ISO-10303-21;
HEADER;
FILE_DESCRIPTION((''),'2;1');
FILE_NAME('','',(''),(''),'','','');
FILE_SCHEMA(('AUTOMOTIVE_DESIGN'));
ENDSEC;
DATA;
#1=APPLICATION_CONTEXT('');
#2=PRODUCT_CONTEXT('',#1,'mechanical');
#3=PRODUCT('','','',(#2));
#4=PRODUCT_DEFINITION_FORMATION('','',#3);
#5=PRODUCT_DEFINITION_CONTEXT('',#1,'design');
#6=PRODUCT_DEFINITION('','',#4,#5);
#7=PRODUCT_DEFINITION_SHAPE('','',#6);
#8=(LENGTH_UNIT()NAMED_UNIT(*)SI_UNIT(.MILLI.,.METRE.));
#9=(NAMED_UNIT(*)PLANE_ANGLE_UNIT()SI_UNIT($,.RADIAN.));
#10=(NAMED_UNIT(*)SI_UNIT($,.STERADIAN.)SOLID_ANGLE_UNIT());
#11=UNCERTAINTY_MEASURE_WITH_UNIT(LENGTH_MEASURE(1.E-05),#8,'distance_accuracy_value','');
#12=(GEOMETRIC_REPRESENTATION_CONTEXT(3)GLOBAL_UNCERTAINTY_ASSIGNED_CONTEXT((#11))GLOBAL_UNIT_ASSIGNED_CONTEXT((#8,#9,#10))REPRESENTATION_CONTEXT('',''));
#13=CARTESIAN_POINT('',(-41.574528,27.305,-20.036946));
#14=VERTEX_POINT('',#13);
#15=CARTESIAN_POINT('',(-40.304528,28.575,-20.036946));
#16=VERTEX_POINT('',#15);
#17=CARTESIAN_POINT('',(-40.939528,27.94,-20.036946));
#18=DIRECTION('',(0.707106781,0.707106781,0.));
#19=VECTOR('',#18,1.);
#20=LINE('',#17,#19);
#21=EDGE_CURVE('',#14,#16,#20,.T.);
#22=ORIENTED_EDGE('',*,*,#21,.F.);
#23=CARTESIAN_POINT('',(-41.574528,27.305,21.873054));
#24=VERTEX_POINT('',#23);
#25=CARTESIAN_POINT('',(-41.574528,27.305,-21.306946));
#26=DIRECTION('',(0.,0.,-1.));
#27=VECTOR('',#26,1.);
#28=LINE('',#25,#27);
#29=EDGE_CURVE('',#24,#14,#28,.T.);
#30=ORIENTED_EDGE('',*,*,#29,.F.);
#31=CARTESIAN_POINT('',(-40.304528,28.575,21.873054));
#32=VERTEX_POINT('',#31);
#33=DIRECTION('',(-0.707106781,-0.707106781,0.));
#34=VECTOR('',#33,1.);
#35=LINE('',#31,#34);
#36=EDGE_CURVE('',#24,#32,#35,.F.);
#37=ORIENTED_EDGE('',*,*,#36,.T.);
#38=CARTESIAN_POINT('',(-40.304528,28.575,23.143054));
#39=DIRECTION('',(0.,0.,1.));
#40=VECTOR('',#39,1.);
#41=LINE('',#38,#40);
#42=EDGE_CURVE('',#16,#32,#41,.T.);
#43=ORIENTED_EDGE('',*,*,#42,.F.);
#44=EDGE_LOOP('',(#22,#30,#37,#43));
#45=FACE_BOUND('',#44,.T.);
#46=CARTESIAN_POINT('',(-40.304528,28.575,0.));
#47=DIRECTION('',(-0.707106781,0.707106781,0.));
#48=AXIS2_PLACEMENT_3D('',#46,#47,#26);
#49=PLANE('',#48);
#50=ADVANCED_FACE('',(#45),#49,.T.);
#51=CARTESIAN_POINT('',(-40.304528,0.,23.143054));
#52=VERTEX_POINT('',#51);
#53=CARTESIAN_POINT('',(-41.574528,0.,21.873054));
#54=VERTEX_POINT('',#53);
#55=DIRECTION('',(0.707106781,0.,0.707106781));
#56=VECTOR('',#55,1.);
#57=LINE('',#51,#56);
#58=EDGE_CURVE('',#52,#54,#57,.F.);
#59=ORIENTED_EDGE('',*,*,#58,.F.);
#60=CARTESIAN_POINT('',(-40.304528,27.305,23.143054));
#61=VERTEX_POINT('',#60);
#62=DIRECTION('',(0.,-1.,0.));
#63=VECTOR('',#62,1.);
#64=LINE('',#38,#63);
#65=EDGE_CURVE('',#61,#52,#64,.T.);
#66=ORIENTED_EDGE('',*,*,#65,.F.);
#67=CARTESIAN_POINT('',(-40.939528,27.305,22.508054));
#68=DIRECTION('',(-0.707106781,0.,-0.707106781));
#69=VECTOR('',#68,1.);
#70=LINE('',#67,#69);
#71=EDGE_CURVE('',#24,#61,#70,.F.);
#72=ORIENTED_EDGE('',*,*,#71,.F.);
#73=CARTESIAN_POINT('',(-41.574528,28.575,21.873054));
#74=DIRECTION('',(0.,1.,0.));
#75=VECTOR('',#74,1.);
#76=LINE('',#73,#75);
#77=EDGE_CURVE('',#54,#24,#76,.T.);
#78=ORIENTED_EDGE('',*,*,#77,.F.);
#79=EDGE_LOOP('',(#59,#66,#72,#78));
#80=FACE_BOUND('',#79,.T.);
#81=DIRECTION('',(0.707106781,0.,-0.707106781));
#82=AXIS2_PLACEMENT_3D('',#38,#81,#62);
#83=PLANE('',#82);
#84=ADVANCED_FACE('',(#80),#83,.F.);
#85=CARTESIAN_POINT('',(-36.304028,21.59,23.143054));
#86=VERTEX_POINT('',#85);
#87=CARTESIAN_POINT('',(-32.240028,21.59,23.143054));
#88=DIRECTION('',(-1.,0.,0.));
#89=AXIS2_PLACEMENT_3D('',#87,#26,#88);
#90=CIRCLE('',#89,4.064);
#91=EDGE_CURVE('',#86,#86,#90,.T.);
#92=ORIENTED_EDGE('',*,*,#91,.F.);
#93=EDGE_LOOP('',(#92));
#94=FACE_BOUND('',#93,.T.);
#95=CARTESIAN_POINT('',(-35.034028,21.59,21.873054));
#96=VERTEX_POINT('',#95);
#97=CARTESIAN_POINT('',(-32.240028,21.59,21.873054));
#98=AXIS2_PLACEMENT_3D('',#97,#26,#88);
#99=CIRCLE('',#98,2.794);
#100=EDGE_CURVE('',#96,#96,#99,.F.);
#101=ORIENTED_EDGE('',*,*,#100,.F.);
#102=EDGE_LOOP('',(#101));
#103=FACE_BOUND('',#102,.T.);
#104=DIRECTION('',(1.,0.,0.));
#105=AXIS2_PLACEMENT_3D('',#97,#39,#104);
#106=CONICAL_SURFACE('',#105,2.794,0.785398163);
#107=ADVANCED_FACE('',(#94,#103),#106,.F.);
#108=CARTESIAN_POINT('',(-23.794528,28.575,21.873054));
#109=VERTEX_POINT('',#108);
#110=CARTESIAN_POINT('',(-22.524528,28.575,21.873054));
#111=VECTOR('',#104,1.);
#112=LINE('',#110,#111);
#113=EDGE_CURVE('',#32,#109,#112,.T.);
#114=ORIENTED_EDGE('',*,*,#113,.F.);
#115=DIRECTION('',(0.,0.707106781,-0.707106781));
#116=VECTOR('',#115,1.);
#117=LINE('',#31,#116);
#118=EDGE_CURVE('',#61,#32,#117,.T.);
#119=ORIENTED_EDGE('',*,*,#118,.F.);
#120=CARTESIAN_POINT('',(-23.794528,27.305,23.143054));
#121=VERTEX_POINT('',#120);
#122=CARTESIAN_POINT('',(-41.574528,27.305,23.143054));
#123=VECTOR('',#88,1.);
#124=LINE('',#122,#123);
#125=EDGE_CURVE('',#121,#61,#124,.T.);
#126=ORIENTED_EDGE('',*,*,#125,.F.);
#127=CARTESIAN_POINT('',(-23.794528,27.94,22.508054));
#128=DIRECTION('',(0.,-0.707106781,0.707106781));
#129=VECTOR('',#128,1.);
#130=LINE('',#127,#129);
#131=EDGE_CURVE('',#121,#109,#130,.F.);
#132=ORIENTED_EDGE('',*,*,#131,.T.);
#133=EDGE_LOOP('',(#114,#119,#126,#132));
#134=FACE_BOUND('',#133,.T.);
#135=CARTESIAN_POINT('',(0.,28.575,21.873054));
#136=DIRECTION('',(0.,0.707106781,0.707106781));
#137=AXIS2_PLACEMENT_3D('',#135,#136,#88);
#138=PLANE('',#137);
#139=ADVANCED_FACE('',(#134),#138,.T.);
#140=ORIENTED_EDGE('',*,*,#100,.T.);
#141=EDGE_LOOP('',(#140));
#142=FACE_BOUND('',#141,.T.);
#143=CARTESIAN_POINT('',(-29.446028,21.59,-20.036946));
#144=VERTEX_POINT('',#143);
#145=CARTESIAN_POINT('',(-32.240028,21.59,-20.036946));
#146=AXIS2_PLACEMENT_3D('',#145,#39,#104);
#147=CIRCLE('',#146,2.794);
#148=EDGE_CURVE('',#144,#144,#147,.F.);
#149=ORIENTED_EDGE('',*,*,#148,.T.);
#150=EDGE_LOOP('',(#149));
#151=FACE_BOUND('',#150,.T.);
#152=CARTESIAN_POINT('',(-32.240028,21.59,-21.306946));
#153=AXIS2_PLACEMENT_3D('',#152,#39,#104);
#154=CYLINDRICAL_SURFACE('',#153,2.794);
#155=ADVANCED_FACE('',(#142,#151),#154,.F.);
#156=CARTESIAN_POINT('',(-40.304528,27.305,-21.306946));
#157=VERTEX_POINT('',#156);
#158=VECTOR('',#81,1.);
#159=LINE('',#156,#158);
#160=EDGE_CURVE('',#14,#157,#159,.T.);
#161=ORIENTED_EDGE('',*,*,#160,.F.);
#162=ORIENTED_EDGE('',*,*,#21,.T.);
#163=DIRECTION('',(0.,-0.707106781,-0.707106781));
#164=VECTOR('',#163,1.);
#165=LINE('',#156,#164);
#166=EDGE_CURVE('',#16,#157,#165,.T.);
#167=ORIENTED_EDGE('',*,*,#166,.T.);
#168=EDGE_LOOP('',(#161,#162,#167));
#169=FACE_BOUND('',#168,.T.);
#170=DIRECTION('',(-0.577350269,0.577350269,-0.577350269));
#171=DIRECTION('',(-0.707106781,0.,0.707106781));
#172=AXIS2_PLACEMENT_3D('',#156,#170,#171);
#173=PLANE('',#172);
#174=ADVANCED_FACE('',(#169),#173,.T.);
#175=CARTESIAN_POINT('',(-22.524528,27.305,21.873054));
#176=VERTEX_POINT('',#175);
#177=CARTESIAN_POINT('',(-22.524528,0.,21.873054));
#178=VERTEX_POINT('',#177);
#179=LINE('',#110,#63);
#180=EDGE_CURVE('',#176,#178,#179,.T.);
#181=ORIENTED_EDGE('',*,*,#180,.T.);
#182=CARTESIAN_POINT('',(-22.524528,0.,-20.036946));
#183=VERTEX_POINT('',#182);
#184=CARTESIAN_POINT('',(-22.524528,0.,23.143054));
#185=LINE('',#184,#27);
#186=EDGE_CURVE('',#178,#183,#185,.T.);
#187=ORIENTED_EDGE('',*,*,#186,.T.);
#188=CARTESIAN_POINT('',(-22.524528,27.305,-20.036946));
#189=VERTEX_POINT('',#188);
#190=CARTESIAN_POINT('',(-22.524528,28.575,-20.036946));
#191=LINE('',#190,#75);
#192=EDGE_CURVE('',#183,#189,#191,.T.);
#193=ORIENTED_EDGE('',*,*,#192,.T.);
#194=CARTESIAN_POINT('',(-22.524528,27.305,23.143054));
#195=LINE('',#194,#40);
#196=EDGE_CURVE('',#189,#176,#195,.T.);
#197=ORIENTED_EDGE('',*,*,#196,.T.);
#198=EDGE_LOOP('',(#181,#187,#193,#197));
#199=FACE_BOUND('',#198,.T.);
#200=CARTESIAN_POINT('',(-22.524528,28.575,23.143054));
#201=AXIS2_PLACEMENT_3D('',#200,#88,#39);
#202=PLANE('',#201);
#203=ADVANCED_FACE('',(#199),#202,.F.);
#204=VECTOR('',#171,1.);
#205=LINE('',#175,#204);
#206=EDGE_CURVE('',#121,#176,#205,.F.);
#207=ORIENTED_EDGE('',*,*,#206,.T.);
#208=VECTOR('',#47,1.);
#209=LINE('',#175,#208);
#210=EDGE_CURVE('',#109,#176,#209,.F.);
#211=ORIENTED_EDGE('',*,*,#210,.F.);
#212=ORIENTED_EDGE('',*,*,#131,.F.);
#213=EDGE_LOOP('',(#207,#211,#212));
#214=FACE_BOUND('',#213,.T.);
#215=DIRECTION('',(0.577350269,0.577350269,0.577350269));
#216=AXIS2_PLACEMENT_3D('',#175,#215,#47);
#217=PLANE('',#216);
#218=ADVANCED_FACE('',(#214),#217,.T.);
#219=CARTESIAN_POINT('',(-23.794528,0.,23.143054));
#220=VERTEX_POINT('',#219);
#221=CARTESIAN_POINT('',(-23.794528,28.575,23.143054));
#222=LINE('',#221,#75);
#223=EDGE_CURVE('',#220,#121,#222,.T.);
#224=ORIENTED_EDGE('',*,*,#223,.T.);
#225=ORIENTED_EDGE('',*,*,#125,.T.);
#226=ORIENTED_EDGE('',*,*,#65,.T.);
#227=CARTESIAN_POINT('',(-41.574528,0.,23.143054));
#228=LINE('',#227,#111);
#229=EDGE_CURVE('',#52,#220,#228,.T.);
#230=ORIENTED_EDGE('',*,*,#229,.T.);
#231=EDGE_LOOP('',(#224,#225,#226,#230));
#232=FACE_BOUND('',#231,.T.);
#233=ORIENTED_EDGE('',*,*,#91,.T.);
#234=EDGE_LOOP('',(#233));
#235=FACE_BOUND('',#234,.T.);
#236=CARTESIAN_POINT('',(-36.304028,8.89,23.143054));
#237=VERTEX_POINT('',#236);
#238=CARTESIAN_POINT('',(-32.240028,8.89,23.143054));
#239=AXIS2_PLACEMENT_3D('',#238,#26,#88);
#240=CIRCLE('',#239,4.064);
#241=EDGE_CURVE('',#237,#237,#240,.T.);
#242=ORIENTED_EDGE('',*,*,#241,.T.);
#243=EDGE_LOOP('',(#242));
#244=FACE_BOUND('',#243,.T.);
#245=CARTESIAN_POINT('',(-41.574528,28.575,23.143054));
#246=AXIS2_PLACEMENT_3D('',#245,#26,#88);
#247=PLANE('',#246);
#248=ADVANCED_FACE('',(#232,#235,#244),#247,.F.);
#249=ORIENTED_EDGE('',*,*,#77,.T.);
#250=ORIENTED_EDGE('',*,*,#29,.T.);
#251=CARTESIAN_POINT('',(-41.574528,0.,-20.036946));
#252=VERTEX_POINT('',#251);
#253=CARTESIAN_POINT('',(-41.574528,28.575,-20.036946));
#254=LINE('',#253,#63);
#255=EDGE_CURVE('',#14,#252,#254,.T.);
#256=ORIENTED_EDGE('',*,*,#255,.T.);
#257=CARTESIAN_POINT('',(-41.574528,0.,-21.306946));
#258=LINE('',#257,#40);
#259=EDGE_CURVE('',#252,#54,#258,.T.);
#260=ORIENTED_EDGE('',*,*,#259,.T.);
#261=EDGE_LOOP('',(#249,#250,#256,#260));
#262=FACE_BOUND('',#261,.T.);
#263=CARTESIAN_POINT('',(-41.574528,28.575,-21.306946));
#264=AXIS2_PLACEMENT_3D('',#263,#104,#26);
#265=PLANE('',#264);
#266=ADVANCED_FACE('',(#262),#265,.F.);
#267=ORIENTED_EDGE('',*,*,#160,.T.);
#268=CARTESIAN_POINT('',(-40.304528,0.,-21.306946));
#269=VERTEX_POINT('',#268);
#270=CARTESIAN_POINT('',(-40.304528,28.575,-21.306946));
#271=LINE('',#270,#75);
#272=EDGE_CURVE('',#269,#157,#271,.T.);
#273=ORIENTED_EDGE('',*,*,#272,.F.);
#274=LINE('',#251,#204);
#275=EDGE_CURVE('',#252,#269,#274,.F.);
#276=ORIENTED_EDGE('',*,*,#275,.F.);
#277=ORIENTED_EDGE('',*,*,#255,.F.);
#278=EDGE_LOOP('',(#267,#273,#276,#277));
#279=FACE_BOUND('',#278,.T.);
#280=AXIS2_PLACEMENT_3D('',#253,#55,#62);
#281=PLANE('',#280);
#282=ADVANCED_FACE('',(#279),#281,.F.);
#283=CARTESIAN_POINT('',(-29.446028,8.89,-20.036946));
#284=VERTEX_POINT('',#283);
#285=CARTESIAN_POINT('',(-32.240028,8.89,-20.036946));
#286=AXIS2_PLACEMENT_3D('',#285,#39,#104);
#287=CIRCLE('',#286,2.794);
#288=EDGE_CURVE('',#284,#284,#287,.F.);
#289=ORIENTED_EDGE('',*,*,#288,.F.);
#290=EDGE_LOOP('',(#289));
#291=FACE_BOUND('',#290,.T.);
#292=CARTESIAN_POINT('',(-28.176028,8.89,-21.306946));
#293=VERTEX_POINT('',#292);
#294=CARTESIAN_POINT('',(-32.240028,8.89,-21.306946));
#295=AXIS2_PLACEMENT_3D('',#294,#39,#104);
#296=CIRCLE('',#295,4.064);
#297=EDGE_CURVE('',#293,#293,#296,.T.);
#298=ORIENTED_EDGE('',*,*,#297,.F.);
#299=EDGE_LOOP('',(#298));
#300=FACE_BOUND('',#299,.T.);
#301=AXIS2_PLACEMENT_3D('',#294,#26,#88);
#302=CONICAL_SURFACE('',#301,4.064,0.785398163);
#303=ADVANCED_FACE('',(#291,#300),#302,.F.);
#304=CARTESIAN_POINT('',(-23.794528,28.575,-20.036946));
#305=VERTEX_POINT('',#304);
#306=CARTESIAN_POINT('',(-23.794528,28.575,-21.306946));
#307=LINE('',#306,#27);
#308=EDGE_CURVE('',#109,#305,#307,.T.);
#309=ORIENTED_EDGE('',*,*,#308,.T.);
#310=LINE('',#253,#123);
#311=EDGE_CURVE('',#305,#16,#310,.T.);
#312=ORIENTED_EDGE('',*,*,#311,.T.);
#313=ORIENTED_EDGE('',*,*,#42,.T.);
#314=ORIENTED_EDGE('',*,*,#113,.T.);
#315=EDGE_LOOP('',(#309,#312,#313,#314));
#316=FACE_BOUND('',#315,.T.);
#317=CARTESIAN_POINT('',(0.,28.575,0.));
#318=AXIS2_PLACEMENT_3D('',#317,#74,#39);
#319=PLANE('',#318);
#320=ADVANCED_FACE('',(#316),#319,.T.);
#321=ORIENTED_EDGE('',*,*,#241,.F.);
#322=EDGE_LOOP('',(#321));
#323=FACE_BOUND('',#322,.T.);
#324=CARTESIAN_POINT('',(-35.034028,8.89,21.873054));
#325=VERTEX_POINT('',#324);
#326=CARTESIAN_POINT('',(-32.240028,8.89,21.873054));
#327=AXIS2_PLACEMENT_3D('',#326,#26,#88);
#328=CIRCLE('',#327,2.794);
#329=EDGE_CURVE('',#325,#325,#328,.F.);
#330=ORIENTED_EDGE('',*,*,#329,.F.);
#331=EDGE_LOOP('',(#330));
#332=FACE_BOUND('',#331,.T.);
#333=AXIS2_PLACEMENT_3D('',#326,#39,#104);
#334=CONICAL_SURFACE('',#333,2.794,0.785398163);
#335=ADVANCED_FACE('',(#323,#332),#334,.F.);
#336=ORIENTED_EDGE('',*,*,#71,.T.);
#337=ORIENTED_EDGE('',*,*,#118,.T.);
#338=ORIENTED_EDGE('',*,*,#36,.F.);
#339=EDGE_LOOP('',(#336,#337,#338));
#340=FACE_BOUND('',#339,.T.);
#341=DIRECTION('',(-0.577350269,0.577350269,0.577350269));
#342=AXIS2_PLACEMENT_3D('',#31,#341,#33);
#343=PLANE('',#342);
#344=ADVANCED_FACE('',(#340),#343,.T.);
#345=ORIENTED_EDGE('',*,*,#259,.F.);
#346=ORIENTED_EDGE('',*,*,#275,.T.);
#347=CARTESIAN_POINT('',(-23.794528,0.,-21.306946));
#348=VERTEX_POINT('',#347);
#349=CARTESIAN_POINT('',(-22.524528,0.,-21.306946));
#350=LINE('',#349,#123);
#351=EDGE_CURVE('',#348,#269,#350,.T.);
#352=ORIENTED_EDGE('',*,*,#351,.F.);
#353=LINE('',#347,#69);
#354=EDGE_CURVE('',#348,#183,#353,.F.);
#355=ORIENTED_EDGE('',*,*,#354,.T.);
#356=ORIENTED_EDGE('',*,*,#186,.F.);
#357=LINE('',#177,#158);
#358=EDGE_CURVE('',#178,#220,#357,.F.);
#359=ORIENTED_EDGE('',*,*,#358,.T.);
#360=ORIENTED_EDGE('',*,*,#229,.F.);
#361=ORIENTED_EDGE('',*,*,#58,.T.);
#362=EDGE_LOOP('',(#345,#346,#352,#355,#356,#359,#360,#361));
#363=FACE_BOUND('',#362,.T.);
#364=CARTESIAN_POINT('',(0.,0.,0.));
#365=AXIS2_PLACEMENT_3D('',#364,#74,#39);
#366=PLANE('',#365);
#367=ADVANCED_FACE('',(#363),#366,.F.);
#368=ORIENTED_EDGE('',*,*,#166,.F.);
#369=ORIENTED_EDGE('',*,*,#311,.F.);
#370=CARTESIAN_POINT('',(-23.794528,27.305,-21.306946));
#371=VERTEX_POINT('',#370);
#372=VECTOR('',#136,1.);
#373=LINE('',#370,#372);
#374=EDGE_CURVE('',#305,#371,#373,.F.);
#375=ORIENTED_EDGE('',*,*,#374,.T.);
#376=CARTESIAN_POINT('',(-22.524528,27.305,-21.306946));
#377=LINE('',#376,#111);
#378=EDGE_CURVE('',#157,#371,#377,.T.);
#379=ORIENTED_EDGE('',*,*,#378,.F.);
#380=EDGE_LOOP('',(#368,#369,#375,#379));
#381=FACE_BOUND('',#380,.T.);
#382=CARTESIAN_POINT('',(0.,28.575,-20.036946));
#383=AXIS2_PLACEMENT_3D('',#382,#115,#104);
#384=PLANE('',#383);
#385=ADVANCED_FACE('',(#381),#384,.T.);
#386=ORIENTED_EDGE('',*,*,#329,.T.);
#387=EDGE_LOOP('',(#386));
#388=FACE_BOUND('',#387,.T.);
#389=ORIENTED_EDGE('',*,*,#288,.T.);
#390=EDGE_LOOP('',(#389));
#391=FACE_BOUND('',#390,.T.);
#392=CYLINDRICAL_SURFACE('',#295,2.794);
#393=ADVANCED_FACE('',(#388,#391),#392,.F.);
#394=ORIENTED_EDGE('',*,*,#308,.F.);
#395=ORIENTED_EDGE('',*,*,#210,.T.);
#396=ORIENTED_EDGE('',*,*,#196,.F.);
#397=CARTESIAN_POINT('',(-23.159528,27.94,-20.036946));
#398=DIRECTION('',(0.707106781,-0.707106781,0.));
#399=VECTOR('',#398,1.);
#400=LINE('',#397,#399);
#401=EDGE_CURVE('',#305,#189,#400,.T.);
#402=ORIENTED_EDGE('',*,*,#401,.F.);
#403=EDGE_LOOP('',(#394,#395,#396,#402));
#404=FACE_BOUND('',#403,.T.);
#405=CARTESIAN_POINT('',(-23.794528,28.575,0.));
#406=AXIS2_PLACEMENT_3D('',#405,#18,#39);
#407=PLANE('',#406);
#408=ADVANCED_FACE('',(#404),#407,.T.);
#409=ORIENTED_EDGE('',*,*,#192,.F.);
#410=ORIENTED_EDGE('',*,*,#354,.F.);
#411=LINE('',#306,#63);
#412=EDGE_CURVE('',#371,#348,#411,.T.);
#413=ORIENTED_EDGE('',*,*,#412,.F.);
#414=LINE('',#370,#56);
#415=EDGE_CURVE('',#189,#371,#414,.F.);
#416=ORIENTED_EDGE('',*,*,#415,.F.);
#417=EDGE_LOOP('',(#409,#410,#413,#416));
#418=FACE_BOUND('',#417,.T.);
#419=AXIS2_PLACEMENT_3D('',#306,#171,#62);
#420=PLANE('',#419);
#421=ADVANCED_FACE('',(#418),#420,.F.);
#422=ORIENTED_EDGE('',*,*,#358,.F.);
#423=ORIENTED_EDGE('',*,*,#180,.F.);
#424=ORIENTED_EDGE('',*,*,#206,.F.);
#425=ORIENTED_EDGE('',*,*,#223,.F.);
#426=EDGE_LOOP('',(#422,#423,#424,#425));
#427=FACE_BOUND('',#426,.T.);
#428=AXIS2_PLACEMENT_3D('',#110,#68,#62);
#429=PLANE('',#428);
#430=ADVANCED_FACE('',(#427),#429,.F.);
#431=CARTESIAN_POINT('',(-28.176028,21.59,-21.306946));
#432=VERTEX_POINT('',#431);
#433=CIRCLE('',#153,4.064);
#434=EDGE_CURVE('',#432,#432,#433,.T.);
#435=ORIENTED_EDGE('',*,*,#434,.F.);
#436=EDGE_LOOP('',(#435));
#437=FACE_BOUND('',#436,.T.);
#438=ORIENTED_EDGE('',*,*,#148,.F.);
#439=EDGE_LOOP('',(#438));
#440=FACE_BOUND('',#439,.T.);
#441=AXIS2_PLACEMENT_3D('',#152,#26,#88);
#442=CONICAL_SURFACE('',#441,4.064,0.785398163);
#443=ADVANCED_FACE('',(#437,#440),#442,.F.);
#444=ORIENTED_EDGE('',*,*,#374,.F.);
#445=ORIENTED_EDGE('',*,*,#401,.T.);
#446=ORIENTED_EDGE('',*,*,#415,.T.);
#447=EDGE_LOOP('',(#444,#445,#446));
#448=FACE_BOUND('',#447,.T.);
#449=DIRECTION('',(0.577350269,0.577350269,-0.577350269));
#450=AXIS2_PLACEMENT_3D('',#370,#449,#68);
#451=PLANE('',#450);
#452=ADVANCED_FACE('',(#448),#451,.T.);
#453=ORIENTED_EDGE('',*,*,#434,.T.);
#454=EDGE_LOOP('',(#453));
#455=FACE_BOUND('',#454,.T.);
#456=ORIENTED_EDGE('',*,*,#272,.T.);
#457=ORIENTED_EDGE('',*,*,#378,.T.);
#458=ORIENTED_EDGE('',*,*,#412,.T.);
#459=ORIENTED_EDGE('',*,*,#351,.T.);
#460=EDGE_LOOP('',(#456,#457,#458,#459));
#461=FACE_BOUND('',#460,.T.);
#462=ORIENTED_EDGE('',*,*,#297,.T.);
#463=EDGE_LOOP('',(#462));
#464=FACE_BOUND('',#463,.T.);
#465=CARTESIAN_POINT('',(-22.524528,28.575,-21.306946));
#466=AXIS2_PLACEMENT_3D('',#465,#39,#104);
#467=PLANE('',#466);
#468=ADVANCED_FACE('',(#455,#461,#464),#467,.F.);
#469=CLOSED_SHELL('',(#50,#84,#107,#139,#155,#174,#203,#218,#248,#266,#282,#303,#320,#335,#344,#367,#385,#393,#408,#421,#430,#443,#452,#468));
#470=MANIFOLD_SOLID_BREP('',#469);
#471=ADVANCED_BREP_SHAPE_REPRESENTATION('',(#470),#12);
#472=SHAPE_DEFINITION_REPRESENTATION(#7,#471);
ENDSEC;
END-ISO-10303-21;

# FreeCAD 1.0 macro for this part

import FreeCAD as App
import Part
import Sketcher
Q = App.Units.Quantity


def edges_at(feature, points):
    """Names of the edges that pass closest to the given points."""
    edges = feature.Shape.Edges
    near = lambda p: min(range(len(edges)), key=lambda i: edges[i].distToShape(Part.Vertex(*p))[0])
    return sorted({f"Edge{near(p) + 1}" for p in points})


def add_polygon(sketch, points):
    """Adds a closed chain of lines whose ends are joined by coincident constraints."""
    first, n = sketch.GeometryCount, len(points)
    for a, b in zip(points, points[1:] + points[:1]):
        sketch.addGeometry(Part.LineSegment(App.Vector(*a, 0), App.Vector(*b, 0)), False)
    for i in range(n):
        sketch.addConstraint(Sketcher.Constraint("Coincident", first + i, 2, first + (i + 1) % n, 1))

doc = App.newDocument("Part")
body = doc.addObject("PartDesign::Body", "Body")

sketch1 = body.newObject("Sketcher::SketchObject", "Sketch")
sketch1.AttachmentSupport = (doc.getObject("XZ_Plane"), [""])
sketch1.MapMode = "FlatFace"
add_polygon(sketch1, [(-41.574528, -21.306946), (-41.574528, 23.143054), (-22.524528, 23.143054), (-22.524528, -21.306946)])
sketch1.addConstraint(Sketcher.Constraint("Vertical", 0))
sketch1.addConstraint(Sketcher.Constraint("Horizontal", 1))
sketch1.addConstraint(Sketcher.Constraint("Vertical", 2))
sketch1.addConstraint(Sketcher.Constraint("Horizontal", 3))
sketch1.addConstraint(Sketcher.Constraint("DistanceX", 1, 1, 1, 2, Q("0.75 in")))
sketch1.addConstraint(Sketcher.Constraint("DistanceY", 0, 1, 0, 2, Q("1.75 in")))
sketch1.addConstraint(Sketcher.Constraint("DistanceX", 0, 2, -1, 1, 41.574528))
sketch1.addConstraint(Sketcher.Constraint("DistanceY", -1, 1, 0, 2, 23.143054))
pad1 = body.newObject("PartDesign::Pad", "Pad")
pad1.Profile = sketch1
pad1.Length = Q("1.125 in")
pad1.Reversed = True

sketch2 = body.newObject("Sketcher::SketchObject", "Sketch001")
sketch2.AttachmentSupport = (doc.getObject("XY_Plane"), [""])
sketch2.MapMode = "FlatFace"
sketch2.AttachmentOffset = App.Placement(App.Vector(0, 0, 23.143054), App.Rotation())
sketch2.addGeometry(Part.Circle(App.Vector(-32.240028, 34.29, 0), App.Vector(0, 0, 1), 2.794), False)
sketch2.addGeometry(Part.Circle(App.Vector(-32.240028, 21.59, 0), App.Vector(0, 0, 1), 2.794), False)
sketch2.addGeometry(Part.Circle(App.Vector(-32.240028, 8.89, 0), App.Vector(0, 0, 1), 2.794), False)
sketch2.addConstraint(Sketcher.Constraint("Equal", 0, 1))
sketch2.addConstraint(Sketcher.Constraint("Equal", 1, 2))
sketch2.addConstraint(Sketcher.Constraint("Vertical", 0, 3, 1, 3))
sketch2.addConstraint(Sketcher.Constraint("Vertical", 1, 3, 2, 3))
sketch2.addConstraint(Sketcher.Constraint("Diameter", 0, Q("0.22 in")))
sketch2.addConstraint(Sketcher.Constraint("DistanceY", 2, 3, 0, 3, Q("1 in")))
sketch2.addConstraint(Sketcher.Constraint("DistanceY", 1, 3, 0, 3, Q("0.5 in")))
sketch2.addConstraint(Sketcher.Constraint("DistanceY", -1, 1, 0, 3, Q("1.35 in")))
sketch2.addConstraint(Sketcher.Constraint("DistanceX", 0, 3, -1, 1, 32.240028))
pocket1 = body.newObject("PartDesign::Pocket", "Pocket")
pocket1.Profile = sketch2
pocket1.Type = "ThroughAll"
doc.recompute()

chamfer = body.newObject("PartDesign::Chamfer", "Chamfer")
chamfer.Base = (pocket1, edges_at(pocket1, [
    (-32.05, 28.575, 23.143),
    (-22.525, 28.575, 0.918),
    (-35.034, 21.59, -21.307),
    (-35.034, 21.59, 23.143),
    (-35.034, 8.89, -21.307),
    (-35.034, 8.89, 23.143),
    (-32.05, 28.575, -21.307),
    (-22.525, 14.287, -21.307),
    (-22.525, 14.287, 23.143),
    (-41.575, 14.287, 23.143),
    (-41.575, 14.287, -21.307),
    (-41.575, 28.575, 0.918),
]))
chamfer.Size = Q("0.05 in")

doc.recompute()
